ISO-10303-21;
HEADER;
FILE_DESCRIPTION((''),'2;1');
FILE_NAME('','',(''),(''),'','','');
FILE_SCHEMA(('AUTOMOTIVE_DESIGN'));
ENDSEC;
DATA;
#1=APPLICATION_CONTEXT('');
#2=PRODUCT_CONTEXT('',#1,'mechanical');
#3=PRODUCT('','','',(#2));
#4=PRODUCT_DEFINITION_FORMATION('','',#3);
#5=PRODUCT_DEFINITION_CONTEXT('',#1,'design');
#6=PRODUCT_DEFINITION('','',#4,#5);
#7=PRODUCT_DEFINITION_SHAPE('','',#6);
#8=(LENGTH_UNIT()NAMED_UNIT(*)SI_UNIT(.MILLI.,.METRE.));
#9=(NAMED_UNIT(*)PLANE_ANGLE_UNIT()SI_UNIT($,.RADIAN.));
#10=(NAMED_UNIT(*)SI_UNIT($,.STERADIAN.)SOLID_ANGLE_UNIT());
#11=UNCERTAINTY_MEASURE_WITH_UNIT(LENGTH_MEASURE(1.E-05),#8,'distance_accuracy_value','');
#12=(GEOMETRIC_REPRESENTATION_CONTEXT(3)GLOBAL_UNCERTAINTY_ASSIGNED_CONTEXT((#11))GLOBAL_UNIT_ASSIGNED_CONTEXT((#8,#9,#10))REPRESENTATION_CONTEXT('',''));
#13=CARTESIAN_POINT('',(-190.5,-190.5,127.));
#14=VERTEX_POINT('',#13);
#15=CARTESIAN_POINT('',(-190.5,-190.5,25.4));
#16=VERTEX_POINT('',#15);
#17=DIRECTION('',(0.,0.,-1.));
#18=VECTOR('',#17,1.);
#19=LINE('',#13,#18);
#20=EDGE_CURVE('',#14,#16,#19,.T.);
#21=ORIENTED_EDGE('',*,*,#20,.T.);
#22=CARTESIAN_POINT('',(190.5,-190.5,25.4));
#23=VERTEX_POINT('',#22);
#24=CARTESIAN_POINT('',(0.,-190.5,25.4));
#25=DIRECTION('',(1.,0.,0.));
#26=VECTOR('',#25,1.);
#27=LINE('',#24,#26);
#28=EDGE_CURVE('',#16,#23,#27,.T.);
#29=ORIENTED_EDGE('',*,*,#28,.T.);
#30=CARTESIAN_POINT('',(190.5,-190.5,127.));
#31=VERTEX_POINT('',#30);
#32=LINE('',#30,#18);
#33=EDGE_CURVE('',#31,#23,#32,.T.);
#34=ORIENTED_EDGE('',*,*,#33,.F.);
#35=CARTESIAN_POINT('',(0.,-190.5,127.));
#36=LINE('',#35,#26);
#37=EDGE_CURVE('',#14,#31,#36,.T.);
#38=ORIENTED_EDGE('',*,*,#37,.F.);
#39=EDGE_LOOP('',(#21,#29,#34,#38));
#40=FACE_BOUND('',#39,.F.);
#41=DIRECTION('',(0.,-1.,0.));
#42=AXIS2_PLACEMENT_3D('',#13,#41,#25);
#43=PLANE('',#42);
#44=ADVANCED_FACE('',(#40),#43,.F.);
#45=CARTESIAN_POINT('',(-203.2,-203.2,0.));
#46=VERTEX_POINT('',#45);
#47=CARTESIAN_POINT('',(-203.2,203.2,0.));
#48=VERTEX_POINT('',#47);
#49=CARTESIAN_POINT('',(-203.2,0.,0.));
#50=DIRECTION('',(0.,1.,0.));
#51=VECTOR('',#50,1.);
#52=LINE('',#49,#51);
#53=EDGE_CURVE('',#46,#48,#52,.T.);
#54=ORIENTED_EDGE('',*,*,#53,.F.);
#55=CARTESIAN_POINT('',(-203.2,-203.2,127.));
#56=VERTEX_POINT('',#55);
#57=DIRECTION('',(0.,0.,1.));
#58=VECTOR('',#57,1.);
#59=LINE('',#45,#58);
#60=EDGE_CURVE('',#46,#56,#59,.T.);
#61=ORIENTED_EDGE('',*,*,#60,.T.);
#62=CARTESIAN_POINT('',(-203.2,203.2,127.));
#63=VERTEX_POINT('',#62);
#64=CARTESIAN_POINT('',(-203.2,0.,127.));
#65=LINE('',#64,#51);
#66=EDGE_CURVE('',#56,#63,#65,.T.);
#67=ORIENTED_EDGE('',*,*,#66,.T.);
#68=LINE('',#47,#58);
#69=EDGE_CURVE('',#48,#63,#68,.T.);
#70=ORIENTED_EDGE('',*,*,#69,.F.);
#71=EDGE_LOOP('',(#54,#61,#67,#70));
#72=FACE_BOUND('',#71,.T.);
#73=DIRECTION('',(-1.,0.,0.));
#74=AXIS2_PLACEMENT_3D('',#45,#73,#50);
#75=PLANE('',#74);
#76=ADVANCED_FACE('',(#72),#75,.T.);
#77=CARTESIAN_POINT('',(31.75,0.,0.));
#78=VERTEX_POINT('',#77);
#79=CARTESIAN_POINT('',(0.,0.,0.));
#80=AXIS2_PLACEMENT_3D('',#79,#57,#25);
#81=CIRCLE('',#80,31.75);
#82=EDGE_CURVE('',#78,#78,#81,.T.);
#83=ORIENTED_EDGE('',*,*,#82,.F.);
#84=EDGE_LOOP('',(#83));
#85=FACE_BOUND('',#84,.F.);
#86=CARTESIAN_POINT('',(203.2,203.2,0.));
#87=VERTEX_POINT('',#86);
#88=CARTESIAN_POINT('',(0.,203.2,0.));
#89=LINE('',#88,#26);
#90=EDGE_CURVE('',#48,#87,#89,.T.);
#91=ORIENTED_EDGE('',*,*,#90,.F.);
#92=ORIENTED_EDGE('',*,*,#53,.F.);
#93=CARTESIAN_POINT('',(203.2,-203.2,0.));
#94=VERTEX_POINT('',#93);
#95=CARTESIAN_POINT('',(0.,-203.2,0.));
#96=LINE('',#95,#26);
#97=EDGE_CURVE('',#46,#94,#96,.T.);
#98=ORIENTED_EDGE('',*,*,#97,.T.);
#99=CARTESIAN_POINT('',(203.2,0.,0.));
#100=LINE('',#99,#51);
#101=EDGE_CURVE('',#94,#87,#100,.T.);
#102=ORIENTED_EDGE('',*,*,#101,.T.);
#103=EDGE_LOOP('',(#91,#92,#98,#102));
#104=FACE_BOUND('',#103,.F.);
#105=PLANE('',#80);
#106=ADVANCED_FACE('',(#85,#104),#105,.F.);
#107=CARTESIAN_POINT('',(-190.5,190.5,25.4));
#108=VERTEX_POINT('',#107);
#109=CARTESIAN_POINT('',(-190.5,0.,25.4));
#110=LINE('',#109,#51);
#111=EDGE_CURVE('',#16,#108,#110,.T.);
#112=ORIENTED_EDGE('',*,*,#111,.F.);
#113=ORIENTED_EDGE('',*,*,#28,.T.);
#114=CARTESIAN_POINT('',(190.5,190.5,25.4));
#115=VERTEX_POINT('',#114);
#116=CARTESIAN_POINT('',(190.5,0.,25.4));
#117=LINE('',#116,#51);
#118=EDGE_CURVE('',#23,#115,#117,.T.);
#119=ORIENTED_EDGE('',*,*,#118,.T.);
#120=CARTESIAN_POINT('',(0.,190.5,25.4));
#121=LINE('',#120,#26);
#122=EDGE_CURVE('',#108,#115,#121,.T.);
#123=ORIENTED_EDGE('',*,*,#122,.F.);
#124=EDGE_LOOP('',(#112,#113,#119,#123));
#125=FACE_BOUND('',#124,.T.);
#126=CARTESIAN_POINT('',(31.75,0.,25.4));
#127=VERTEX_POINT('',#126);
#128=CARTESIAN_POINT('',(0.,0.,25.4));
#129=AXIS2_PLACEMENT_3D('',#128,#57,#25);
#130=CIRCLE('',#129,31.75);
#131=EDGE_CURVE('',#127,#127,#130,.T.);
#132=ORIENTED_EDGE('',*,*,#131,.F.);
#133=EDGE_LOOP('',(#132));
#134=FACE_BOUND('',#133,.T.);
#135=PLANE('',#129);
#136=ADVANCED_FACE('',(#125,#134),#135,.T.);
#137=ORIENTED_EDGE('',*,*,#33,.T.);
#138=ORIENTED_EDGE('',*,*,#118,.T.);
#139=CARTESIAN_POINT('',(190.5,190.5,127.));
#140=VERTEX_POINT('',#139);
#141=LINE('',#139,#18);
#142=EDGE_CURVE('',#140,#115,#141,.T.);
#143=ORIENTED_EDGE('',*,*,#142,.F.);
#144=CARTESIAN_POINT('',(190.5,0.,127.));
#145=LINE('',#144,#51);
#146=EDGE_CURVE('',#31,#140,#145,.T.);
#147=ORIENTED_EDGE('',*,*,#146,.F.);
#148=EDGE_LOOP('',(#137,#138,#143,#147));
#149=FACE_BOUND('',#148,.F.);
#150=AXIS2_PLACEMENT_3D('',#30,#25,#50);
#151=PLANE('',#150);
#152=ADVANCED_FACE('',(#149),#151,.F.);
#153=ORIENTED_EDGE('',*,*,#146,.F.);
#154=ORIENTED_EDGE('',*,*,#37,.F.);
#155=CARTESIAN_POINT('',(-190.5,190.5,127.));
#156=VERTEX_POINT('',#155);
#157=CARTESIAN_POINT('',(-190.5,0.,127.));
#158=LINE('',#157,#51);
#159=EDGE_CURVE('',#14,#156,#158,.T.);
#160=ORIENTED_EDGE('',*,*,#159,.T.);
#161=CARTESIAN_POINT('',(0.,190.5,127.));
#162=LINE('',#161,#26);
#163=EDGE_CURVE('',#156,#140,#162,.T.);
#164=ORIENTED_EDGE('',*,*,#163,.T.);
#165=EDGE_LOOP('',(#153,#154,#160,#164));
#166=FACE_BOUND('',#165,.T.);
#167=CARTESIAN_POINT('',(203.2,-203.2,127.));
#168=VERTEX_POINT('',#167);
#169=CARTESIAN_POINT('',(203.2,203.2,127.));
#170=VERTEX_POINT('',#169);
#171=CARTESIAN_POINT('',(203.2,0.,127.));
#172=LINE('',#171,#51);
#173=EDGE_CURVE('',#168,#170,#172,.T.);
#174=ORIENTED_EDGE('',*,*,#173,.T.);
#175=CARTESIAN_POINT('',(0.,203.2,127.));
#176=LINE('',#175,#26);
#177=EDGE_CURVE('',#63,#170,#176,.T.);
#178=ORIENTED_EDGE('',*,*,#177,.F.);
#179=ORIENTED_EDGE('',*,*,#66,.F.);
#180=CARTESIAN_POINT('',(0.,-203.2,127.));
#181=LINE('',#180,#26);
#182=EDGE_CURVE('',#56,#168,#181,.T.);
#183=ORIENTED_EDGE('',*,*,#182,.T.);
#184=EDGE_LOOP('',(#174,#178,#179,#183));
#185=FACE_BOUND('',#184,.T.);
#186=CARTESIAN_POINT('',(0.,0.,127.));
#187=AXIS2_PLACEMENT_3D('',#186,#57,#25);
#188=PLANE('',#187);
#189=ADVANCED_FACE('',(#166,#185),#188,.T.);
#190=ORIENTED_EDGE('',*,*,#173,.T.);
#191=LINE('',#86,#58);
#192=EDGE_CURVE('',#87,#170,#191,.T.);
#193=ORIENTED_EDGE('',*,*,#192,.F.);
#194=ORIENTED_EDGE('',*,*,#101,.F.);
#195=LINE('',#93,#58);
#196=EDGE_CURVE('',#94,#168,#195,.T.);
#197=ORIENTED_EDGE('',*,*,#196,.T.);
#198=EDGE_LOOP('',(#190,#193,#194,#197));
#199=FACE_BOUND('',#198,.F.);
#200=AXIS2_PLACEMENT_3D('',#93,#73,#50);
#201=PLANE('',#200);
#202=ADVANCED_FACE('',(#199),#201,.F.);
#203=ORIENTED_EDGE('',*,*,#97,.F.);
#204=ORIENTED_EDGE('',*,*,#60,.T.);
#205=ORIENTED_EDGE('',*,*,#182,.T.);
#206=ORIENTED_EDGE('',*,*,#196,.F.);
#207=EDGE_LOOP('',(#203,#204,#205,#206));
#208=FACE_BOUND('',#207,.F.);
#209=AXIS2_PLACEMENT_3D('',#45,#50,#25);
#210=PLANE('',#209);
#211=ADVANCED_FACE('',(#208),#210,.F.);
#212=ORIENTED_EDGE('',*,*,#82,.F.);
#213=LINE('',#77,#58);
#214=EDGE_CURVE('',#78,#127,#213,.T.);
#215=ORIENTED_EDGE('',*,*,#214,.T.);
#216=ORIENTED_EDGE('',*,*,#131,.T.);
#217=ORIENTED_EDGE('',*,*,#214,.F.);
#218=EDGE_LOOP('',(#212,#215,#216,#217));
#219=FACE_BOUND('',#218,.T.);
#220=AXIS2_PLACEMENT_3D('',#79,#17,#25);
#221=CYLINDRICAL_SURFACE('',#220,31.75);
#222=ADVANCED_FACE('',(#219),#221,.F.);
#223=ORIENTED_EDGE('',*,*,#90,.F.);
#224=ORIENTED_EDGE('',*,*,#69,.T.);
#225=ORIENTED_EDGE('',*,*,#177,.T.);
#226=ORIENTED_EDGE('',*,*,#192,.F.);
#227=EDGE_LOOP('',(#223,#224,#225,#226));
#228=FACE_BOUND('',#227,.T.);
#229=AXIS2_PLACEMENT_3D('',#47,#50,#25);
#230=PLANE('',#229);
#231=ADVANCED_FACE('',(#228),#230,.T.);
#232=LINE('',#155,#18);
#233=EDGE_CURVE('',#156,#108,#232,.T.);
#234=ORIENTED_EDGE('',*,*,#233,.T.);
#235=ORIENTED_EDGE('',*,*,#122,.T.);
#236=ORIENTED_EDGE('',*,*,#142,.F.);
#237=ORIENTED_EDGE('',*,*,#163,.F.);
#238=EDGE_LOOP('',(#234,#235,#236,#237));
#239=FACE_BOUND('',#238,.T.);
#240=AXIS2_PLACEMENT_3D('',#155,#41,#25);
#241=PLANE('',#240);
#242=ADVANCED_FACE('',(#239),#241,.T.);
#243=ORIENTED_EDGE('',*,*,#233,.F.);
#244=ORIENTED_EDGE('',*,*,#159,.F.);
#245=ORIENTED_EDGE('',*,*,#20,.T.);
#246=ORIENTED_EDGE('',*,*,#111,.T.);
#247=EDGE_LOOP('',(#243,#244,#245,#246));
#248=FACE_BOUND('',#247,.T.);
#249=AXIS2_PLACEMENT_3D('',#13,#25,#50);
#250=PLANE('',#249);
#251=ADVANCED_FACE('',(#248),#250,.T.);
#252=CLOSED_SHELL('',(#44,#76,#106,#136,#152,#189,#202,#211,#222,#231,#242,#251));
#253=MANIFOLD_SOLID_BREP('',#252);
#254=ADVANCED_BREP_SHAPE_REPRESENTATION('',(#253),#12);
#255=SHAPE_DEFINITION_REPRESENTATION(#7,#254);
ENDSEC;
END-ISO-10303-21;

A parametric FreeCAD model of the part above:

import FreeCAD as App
import Part
import Sketcher

V = App.Vector
Q = App.Units.Quantity


def add_polygon(sketch, points):
    """Adds a closed chain of lines whose ends are joined by coincident constraints."""
    first, n = sketch.GeometryCount, len(points)
    for a, b in zip(points, points[1:] + points[:1]):
        sketch.addGeometry(Part.LineSegment(App.Vector(*a, 0), App.Vector(*b, 0)), False)
    for i in range(n):
        sketch.addConstraint(Sketcher.Constraint("Coincident", first + i, 2, first + (i + 1) % n, 1))

doc = App.newDocument("Part")
body = doc.addObject("PartDesign::Body", "Body")

sketch1 = body.newObject("Sketcher::SketchObject", "Sketch")
sketch1.AttachmentSupport = (doc.getObject("XY_Plane"), [""])
sketch1.MapMode = "FlatFace"
add_polygon(sketch1, [(-203, 203), (-203, -203), (203, -203), (203, 203)])
sketch1.addGeometry(Part.Circle(V(0, 0, 0), V(0, 0, 1), 32), False)
sketch1.addConstraint(Sketcher.Constraint("Vertical", 0))
sketch1.addConstraint(Sketcher.Constraint("Horizontal", 1))
sketch1.addConstraint(Sketcher.Constraint("Vertical", 2))
sketch1.addConstraint(Sketcher.Constraint("Horizontal", 3))
sketch1.addConstraint(Sketcher.Constraint("Coincident", 4, 3, -1, 1))
sketch1.addConstraint(Sketcher.Constraint("Symmetric", 0, 2, 2, 2, -1, 1))
sketch1.addConstraint(Sketcher.Constraint("Equal", 3, 0))
sketch1.addConstraint(Sketcher.Constraint("Diameter", 4, Q("2.5 in")))
sketch1.addConstraint(Sketcher.Constraint("DistanceX", 1, 1, 1, 2, Q("16 in")))
pad1 = body.newObject("PartDesign::Pad", "Pad")
pad1.Profile = sketch1
pad1.Length = Q("5 in")

sketch2 = body.newObject("Sketcher::SketchObject", "Sketch001")
sketch2.AttachmentSupport = (doc.getObject("XY_Plane"), [""])
sketch2.MapMode = "FlatFace"
sketch2.AttachmentOffset = App.Placement(V(0, 0, 5 * 25.4), App.Rotation())
add_polygon(sketch2, [(-190, 190), (-190, -190), (190, -190), (190, 190)])
sketch2.addGeometry(Part.Circle(V(0, 0, 0), V(0, 0, 1), 32), False)
sketch2.addConstraint(Sketcher.Constraint("Vertical", 0))
sketch2.addConstraint(Sketcher.Constraint("Horizontal", 1))
sketch2.addConstraint(Sketcher.Constraint("Vertical", 2))
sketch2.addConstraint(Sketcher.Constraint("Horizontal", 3))
sketch2.addConstraint(Sketcher.Constraint("Coincident", 4, 3, -1, 1))
sketch2.addConstraint(Sketcher.Constraint("Symmetric", 0, 2, 2, 2, -1, 1))
sketch2.addConstraint(Sketcher.Constraint("Equal", 3, 0))
sketch2.addConstraint(Sketcher.Constraint("Diameter", 4, Q("2.5 in")))
sketch2.addConstraint(Sketcher.Constraint("DistanceX", 1, 1, 1, 2, Q("15 in")))
pocket1 = body.newObject("PartDesign::Pocket", "Pocket")
pocket1.Profile = sketch2
pocket1.Length = Q("4 in")

doc.recompute()
